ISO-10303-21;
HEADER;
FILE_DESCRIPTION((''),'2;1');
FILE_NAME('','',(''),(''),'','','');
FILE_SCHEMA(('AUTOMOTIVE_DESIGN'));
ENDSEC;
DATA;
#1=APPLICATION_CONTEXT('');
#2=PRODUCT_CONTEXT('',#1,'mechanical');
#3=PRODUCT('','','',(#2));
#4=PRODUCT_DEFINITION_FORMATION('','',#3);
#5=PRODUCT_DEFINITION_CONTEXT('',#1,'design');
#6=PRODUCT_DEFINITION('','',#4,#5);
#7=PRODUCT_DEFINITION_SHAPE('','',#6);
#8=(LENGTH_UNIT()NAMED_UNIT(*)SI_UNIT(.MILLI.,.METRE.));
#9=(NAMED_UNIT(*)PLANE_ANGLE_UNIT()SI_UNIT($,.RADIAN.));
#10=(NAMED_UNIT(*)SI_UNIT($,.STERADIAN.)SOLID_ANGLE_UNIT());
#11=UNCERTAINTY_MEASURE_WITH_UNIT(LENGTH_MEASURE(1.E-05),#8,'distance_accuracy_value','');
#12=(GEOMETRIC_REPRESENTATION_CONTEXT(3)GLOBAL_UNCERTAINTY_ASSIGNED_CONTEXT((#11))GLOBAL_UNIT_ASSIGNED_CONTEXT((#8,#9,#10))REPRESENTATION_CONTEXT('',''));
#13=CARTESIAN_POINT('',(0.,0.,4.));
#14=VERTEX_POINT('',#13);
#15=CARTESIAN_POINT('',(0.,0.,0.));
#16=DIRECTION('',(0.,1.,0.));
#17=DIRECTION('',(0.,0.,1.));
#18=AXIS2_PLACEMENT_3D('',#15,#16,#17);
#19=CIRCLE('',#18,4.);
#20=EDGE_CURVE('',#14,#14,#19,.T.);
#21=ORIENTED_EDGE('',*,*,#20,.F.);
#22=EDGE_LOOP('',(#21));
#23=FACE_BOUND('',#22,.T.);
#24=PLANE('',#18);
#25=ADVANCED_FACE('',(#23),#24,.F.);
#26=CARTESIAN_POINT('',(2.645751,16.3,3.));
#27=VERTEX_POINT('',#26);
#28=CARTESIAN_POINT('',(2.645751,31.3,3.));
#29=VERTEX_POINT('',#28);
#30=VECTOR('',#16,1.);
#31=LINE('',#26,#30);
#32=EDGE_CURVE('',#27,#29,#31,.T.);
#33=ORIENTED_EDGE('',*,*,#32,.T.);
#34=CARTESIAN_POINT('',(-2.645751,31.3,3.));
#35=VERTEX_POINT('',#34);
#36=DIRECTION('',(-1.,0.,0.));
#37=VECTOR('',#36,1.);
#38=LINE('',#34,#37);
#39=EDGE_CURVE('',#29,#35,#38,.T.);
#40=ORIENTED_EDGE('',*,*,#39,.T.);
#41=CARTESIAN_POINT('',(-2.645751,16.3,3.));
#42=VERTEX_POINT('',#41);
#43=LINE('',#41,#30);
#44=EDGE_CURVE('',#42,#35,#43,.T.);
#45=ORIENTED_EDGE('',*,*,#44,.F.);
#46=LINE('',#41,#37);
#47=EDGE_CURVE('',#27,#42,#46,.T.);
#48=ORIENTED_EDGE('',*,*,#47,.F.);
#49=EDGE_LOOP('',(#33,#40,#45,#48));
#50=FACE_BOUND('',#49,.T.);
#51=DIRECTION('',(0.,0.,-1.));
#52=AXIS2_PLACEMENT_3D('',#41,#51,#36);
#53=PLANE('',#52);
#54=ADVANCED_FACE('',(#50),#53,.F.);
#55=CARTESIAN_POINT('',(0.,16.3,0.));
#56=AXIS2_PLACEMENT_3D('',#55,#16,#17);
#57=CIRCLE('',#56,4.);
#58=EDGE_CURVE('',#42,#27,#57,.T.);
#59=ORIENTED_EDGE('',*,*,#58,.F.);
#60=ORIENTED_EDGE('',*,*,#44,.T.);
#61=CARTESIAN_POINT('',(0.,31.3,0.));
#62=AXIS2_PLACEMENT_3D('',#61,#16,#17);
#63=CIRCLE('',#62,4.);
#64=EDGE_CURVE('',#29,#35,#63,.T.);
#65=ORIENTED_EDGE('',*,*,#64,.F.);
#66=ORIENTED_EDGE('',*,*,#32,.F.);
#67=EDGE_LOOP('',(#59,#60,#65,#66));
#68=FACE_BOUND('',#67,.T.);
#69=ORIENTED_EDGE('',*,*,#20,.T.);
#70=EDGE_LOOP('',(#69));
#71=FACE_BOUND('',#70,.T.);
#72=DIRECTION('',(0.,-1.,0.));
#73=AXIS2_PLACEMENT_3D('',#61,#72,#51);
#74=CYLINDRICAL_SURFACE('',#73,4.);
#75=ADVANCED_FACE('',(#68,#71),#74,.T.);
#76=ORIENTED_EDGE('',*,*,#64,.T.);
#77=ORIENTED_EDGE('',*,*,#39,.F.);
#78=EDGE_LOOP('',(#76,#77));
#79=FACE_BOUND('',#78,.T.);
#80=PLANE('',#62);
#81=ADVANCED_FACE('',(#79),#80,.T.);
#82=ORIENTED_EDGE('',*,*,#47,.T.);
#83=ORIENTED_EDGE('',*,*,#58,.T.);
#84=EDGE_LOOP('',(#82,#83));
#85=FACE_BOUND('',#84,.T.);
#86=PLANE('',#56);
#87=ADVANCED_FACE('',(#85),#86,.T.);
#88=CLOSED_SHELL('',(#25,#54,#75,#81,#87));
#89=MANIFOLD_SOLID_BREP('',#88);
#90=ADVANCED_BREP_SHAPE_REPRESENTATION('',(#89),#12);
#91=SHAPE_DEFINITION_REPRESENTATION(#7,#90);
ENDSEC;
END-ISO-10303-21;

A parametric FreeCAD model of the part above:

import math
import FreeCAD as App
import Part
import Sketcher
from FreeCAD import Vector

doc = App.newDocument("Part")
params = doc.addObject("Spreadsheet::Sheet", "Params")
for row, (alias, value) in enumerate([
    ("sketch1_diameter", "8 mm"),
    ("pad1_length", "31.3 mm"),
    ("sketch2_radius", "4 mm"),
    ("pocket1_length", "15 mm"),
], start=1):
    params.set(f"A{row}", alias)
    params.set(f"B{row}", "=" + value)
    params.setAlias(f"B{row}", alias)

body = doc.addObject("PartDesign::Body", "Body")

# Sketch on XZ plane
sketch1 = doc.addObject("Sketcher::SketchObject", "Sketch")
body.addObject(sketch1)
sketch1.AttachmentSupport = (doc.XZ_Plane, [""])
sketch1.MapMode = "FlatFace"
sketch1.addGeometry(Part.Circle(Vector(0, 0, 0), Vector(0, 0, 1), 4), False)
sketch1.addConstraint([
    Sketcher.Constraint("Coincident", 0, 3, -1, 1),
    Sketcher.Constraint("Diameter", 0, 8.0),
])
sketch1.setExpression("Constraints[1]", "Params.sketch1_diameter")
pad1 = doc.addObject("PartDesign::Pad", "Pad")
body.addObject(pad1)
pad1.Profile = sketch1
pad1.setExpression("Length", "Params.pad1_length")
pad1.Reversed = True

# Sketch on XZ plane
sketch2 = doc.addObject("Sketcher::SketchObject", "Sketch001")
body.addObject(sketch2)
sketch2.AttachmentSupport = (doc.XZ_Plane, [""])
sketch2.MapMode = "FlatFace"
sketch2.AttachmentOffset = App.Placement(Vector(0, 0, -31.3), App.Rotation())
sketch2.addGeometry([
    Part.LineSegment(Vector(2.645751, 3, 0), Vector(-2.645751, 3, 0)),
    Part.ArcOfCircle(Part.Circle(Vector(0, 0, 0), Vector(0, 0, 1), 4), math.radians(48.590378), math.radians(131.409622)),
], False)
sketch2.addConstraint([
    Sketcher.Constraint("Coincident", 0, 1, 1, 1),
    Sketcher.Constraint("Coincident", 1, 2, 0, 2),
    Sketcher.Constraint("Horizontal", 0),
    Sketcher.Constraint("Coincident", 1, 3, -1, 1),
    Sketcher.Constraint("Radius", 1, 4.0),
    Sketcher.Constraint("DistanceY", -1, 1, 0, 1, 3.0),
])
sketch2.setExpression("Constraints[4]", "Params.sketch2_radius")
pocket1 = doc.addObject("PartDesign::Pocket", "Pocket")
body.addObject(pocket1)
pocket1.Profile = sketch2
pocket1.setExpression("Length", "Params.pocket1_length")
pocket1.Reversed = True

doc.recompute()
